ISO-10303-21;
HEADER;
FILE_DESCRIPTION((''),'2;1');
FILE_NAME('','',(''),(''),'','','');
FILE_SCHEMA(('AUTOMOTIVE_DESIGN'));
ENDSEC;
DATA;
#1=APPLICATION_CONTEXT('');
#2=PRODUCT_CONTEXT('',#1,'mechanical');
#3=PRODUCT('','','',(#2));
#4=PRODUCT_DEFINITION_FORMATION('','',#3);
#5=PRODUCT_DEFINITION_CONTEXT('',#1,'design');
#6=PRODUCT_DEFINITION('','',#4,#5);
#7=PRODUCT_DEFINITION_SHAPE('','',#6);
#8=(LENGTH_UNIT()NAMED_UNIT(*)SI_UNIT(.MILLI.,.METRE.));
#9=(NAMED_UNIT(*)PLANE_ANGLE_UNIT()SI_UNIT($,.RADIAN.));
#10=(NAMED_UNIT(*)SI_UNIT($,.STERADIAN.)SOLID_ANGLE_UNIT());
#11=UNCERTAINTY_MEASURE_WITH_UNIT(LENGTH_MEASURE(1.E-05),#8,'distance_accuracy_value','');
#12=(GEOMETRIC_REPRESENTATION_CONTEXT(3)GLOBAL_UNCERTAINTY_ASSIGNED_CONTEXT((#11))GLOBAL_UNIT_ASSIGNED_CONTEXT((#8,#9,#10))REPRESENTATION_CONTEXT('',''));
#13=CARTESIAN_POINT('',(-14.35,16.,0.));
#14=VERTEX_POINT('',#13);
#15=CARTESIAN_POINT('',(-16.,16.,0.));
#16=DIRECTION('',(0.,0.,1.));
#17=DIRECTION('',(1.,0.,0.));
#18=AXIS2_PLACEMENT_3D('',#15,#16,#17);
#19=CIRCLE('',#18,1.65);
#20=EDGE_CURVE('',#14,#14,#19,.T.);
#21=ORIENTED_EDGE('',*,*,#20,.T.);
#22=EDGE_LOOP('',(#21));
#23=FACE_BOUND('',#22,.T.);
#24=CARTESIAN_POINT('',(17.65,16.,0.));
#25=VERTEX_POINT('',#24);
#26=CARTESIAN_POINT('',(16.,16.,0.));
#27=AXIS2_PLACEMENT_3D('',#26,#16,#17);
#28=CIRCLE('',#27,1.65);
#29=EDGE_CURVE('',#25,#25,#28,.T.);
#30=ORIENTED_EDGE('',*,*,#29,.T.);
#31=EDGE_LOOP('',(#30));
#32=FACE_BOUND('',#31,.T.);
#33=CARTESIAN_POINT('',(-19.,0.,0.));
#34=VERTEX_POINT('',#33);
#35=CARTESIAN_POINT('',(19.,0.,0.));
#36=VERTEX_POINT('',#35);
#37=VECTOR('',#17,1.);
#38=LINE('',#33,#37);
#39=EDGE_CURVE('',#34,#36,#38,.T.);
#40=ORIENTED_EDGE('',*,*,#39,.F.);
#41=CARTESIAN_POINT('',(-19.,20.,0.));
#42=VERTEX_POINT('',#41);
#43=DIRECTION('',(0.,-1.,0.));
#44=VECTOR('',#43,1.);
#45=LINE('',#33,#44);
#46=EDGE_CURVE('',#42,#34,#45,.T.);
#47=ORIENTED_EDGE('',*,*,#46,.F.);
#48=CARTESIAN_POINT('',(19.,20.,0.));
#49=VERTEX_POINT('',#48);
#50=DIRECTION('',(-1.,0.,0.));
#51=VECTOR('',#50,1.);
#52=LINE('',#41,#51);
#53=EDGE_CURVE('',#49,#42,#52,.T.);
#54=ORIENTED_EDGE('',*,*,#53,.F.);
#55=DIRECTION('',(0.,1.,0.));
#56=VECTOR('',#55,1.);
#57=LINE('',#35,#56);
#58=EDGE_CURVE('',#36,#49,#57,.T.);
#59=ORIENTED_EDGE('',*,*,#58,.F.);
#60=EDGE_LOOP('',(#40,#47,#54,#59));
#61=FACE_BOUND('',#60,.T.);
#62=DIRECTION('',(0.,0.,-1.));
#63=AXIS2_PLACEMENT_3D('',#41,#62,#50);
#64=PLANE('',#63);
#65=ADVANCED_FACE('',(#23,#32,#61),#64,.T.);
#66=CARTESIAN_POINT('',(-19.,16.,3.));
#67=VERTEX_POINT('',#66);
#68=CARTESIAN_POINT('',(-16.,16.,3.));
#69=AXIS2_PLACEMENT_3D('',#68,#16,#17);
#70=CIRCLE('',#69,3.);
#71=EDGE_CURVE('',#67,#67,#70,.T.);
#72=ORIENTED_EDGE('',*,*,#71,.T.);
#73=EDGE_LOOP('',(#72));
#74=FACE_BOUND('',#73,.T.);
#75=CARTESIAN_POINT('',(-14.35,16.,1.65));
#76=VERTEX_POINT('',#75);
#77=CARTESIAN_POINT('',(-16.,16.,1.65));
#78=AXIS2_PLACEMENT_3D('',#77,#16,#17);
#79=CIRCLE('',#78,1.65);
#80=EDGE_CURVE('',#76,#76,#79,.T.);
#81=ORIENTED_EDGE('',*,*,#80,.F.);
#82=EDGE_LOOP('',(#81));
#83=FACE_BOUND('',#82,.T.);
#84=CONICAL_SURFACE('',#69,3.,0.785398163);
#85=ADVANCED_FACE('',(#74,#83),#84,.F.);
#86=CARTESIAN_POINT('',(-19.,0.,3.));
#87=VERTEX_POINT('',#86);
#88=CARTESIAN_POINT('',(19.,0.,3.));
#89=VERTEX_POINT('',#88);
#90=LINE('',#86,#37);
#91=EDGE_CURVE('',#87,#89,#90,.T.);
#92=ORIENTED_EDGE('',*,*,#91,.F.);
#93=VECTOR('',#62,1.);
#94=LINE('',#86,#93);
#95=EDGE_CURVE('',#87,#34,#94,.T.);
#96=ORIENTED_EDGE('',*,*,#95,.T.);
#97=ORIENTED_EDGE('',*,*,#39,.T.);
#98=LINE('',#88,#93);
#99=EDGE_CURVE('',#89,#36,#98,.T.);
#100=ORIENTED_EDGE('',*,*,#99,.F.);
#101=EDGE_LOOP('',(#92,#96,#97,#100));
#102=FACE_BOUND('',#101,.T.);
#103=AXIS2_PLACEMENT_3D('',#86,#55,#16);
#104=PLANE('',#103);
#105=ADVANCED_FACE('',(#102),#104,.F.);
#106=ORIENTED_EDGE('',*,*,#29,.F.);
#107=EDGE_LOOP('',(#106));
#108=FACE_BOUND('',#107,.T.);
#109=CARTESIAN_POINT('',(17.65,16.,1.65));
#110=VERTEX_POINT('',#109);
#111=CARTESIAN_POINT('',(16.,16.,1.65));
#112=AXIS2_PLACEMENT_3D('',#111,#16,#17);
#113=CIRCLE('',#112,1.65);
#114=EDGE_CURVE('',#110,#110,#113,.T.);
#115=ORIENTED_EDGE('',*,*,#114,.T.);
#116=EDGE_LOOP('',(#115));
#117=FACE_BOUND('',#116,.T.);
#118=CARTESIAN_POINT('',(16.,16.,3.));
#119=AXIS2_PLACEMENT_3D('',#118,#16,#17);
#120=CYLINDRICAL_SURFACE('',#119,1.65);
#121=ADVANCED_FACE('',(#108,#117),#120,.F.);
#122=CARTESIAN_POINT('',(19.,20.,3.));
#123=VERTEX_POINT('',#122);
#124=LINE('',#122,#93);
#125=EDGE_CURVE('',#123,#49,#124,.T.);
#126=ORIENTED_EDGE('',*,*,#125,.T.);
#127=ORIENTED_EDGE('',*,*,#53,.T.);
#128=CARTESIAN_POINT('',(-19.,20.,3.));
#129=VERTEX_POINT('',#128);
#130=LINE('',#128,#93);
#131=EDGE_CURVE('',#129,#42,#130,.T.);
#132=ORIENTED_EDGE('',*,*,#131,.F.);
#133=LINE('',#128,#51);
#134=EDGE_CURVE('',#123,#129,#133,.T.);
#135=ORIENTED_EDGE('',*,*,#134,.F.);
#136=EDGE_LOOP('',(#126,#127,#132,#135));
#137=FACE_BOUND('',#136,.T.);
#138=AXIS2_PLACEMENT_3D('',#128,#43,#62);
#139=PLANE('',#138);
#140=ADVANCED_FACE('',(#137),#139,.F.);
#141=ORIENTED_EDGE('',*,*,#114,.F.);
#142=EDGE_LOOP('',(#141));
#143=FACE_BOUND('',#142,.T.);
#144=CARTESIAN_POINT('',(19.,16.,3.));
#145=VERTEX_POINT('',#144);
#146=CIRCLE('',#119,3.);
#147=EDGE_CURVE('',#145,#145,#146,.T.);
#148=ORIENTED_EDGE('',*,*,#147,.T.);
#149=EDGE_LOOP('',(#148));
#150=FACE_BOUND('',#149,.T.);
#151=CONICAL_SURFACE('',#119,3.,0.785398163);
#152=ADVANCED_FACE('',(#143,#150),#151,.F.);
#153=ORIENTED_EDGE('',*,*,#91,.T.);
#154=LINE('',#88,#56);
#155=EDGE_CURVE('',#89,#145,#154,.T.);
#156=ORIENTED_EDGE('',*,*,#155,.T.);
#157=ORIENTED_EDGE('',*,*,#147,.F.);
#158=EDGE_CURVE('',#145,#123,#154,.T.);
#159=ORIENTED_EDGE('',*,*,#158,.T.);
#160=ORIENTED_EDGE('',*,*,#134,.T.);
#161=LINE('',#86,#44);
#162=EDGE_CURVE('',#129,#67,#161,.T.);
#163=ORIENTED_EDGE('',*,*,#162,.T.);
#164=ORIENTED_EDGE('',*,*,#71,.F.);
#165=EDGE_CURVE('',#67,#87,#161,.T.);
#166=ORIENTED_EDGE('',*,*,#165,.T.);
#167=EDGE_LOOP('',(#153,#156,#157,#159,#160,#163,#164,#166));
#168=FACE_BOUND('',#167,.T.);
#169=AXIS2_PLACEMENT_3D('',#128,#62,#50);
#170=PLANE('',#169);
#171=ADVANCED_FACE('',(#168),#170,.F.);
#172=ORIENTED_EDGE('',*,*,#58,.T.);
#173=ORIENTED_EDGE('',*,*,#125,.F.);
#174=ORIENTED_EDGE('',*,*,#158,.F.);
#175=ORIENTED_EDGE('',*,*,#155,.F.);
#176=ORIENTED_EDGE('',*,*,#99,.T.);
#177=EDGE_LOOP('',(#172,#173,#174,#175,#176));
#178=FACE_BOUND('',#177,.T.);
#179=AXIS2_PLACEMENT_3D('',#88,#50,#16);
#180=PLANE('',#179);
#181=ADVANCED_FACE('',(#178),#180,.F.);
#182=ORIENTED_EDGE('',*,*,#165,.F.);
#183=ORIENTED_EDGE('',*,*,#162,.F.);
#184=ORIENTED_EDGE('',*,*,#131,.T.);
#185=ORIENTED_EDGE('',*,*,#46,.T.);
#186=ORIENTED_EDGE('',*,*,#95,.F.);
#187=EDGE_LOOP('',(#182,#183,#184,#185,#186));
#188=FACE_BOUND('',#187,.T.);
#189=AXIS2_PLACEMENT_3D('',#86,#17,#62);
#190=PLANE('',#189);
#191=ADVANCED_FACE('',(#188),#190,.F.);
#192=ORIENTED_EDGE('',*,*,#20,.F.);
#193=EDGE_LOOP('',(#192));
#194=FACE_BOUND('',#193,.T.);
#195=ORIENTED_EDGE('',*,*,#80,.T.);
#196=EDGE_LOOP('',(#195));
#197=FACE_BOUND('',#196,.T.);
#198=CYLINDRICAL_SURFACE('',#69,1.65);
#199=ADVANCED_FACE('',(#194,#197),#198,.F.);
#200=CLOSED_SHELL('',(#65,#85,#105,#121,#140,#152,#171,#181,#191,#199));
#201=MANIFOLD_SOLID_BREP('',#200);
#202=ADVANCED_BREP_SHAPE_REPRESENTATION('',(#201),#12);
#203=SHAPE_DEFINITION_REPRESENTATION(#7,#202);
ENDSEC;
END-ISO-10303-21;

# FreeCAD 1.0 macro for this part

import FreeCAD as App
import Part
import Sketcher
from FreeCAD import Vector
Q = App.Units.Quantity


def add_polygon(sketch, points):
    """Adds a closed chain of lines whose ends are joined by coincident constraints."""
    first, n = sketch.GeometryCount, len(points)
    for a, b in zip(points, points[1:] + points[:1]):
        sketch.addGeometry(Part.LineSegment(App.Vector(*a, 0), App.Vector(*b, 0)), False)
    for i in range(n):
        sketch.addConstraint(Sketcher.Constraint("Coincident", first + i, 2, first + (i + 1) % n, 1))

doc = App.newDocument("Part")
body = doc.addObject("PartDesign::Body", "Body")

# Sketch on XY plane
sketch1 = body.newObject("Sketcher::SketchObject", "Sketch")
sketch1.AttachmentSupport = (doc.getObject("XY_Plane"), [""])
sketch1.MapMode = "FlatFace"
add_polygon(sketch1, [(-19, 20), (-19, 0), (19, 0), (19, 20)])  # lines 0-3
sketch1.addConstraint([
    Sketcher.Constraint("Vertical", 0),
    Sketcher.Constraint("Horizontal", 1),
    Sketcher.Constraint("Vertical", 2),
    Sketcher.Constraint("Horizontal", 3),
    Sketcher.Constraint("Symmetric", 0, 2, 1, 2, -1, 1),
    Sketcher.Constraint("DistanceX", 1, 1, 1, 2, Q("38 mm")),
    Sketcher.Constraint("DistanceY", 0, 2, 0, 1, Q("20 mm")),
])
pad1 = body.newObject("PartDesign::Pad", "Pad")
pad1.Profile = sketch1
pad1.Length = 3

# Sketch on XY plane
sketch2 = body.newObject("Sketcher::SketchObject", "Sketch001")
sketch2.AttachmentSupport = (doc.getObject("XY_Plane"), [""])
sketch2.MapMode = "FlatFace"
sketch2.AttachmentOffset = App.Placement(Vector(0, 0, 3), App.Rotation())
sketch2.addGeometry([
    Part.Circle(Vector(-16, 16, 0), Vector(0, 0, 1), 1.65),
    Part.Circle(Vector(16, 16, 0), Vector(0, 0, 1), 1.65),
], False)
sketch2.addConstraint([
    Sketcher.Constraint("Equal", 0, 1),
    Sketcher.Constraint("Symmetric", 0, 3, 1, 3, -2),
    Sketcher.Constraint("Diameter", 0, Q("3.3 mm")),
    Sketcher.Constraint("DistanceX", 0, 3, -1, 1, Q("16 mm")),
    Sketcher.Constraint("DistanceY", -1, 1, 0, 3, Q("16 mm")),
])
doc.recompute()
hole = body.newObject("PartDesign::Hole", "Hole")
hole.Profile = sketch2
hole.ThreadType = "None"
hole.Diameter = 3.3
hole.DepthType = "ThroughAll"
hole.HoleCutType = "Countersink"
hole.HoleCutDiameter = 6
hole.HoleCutCountersinkAngle = 90

doc.recompute()
